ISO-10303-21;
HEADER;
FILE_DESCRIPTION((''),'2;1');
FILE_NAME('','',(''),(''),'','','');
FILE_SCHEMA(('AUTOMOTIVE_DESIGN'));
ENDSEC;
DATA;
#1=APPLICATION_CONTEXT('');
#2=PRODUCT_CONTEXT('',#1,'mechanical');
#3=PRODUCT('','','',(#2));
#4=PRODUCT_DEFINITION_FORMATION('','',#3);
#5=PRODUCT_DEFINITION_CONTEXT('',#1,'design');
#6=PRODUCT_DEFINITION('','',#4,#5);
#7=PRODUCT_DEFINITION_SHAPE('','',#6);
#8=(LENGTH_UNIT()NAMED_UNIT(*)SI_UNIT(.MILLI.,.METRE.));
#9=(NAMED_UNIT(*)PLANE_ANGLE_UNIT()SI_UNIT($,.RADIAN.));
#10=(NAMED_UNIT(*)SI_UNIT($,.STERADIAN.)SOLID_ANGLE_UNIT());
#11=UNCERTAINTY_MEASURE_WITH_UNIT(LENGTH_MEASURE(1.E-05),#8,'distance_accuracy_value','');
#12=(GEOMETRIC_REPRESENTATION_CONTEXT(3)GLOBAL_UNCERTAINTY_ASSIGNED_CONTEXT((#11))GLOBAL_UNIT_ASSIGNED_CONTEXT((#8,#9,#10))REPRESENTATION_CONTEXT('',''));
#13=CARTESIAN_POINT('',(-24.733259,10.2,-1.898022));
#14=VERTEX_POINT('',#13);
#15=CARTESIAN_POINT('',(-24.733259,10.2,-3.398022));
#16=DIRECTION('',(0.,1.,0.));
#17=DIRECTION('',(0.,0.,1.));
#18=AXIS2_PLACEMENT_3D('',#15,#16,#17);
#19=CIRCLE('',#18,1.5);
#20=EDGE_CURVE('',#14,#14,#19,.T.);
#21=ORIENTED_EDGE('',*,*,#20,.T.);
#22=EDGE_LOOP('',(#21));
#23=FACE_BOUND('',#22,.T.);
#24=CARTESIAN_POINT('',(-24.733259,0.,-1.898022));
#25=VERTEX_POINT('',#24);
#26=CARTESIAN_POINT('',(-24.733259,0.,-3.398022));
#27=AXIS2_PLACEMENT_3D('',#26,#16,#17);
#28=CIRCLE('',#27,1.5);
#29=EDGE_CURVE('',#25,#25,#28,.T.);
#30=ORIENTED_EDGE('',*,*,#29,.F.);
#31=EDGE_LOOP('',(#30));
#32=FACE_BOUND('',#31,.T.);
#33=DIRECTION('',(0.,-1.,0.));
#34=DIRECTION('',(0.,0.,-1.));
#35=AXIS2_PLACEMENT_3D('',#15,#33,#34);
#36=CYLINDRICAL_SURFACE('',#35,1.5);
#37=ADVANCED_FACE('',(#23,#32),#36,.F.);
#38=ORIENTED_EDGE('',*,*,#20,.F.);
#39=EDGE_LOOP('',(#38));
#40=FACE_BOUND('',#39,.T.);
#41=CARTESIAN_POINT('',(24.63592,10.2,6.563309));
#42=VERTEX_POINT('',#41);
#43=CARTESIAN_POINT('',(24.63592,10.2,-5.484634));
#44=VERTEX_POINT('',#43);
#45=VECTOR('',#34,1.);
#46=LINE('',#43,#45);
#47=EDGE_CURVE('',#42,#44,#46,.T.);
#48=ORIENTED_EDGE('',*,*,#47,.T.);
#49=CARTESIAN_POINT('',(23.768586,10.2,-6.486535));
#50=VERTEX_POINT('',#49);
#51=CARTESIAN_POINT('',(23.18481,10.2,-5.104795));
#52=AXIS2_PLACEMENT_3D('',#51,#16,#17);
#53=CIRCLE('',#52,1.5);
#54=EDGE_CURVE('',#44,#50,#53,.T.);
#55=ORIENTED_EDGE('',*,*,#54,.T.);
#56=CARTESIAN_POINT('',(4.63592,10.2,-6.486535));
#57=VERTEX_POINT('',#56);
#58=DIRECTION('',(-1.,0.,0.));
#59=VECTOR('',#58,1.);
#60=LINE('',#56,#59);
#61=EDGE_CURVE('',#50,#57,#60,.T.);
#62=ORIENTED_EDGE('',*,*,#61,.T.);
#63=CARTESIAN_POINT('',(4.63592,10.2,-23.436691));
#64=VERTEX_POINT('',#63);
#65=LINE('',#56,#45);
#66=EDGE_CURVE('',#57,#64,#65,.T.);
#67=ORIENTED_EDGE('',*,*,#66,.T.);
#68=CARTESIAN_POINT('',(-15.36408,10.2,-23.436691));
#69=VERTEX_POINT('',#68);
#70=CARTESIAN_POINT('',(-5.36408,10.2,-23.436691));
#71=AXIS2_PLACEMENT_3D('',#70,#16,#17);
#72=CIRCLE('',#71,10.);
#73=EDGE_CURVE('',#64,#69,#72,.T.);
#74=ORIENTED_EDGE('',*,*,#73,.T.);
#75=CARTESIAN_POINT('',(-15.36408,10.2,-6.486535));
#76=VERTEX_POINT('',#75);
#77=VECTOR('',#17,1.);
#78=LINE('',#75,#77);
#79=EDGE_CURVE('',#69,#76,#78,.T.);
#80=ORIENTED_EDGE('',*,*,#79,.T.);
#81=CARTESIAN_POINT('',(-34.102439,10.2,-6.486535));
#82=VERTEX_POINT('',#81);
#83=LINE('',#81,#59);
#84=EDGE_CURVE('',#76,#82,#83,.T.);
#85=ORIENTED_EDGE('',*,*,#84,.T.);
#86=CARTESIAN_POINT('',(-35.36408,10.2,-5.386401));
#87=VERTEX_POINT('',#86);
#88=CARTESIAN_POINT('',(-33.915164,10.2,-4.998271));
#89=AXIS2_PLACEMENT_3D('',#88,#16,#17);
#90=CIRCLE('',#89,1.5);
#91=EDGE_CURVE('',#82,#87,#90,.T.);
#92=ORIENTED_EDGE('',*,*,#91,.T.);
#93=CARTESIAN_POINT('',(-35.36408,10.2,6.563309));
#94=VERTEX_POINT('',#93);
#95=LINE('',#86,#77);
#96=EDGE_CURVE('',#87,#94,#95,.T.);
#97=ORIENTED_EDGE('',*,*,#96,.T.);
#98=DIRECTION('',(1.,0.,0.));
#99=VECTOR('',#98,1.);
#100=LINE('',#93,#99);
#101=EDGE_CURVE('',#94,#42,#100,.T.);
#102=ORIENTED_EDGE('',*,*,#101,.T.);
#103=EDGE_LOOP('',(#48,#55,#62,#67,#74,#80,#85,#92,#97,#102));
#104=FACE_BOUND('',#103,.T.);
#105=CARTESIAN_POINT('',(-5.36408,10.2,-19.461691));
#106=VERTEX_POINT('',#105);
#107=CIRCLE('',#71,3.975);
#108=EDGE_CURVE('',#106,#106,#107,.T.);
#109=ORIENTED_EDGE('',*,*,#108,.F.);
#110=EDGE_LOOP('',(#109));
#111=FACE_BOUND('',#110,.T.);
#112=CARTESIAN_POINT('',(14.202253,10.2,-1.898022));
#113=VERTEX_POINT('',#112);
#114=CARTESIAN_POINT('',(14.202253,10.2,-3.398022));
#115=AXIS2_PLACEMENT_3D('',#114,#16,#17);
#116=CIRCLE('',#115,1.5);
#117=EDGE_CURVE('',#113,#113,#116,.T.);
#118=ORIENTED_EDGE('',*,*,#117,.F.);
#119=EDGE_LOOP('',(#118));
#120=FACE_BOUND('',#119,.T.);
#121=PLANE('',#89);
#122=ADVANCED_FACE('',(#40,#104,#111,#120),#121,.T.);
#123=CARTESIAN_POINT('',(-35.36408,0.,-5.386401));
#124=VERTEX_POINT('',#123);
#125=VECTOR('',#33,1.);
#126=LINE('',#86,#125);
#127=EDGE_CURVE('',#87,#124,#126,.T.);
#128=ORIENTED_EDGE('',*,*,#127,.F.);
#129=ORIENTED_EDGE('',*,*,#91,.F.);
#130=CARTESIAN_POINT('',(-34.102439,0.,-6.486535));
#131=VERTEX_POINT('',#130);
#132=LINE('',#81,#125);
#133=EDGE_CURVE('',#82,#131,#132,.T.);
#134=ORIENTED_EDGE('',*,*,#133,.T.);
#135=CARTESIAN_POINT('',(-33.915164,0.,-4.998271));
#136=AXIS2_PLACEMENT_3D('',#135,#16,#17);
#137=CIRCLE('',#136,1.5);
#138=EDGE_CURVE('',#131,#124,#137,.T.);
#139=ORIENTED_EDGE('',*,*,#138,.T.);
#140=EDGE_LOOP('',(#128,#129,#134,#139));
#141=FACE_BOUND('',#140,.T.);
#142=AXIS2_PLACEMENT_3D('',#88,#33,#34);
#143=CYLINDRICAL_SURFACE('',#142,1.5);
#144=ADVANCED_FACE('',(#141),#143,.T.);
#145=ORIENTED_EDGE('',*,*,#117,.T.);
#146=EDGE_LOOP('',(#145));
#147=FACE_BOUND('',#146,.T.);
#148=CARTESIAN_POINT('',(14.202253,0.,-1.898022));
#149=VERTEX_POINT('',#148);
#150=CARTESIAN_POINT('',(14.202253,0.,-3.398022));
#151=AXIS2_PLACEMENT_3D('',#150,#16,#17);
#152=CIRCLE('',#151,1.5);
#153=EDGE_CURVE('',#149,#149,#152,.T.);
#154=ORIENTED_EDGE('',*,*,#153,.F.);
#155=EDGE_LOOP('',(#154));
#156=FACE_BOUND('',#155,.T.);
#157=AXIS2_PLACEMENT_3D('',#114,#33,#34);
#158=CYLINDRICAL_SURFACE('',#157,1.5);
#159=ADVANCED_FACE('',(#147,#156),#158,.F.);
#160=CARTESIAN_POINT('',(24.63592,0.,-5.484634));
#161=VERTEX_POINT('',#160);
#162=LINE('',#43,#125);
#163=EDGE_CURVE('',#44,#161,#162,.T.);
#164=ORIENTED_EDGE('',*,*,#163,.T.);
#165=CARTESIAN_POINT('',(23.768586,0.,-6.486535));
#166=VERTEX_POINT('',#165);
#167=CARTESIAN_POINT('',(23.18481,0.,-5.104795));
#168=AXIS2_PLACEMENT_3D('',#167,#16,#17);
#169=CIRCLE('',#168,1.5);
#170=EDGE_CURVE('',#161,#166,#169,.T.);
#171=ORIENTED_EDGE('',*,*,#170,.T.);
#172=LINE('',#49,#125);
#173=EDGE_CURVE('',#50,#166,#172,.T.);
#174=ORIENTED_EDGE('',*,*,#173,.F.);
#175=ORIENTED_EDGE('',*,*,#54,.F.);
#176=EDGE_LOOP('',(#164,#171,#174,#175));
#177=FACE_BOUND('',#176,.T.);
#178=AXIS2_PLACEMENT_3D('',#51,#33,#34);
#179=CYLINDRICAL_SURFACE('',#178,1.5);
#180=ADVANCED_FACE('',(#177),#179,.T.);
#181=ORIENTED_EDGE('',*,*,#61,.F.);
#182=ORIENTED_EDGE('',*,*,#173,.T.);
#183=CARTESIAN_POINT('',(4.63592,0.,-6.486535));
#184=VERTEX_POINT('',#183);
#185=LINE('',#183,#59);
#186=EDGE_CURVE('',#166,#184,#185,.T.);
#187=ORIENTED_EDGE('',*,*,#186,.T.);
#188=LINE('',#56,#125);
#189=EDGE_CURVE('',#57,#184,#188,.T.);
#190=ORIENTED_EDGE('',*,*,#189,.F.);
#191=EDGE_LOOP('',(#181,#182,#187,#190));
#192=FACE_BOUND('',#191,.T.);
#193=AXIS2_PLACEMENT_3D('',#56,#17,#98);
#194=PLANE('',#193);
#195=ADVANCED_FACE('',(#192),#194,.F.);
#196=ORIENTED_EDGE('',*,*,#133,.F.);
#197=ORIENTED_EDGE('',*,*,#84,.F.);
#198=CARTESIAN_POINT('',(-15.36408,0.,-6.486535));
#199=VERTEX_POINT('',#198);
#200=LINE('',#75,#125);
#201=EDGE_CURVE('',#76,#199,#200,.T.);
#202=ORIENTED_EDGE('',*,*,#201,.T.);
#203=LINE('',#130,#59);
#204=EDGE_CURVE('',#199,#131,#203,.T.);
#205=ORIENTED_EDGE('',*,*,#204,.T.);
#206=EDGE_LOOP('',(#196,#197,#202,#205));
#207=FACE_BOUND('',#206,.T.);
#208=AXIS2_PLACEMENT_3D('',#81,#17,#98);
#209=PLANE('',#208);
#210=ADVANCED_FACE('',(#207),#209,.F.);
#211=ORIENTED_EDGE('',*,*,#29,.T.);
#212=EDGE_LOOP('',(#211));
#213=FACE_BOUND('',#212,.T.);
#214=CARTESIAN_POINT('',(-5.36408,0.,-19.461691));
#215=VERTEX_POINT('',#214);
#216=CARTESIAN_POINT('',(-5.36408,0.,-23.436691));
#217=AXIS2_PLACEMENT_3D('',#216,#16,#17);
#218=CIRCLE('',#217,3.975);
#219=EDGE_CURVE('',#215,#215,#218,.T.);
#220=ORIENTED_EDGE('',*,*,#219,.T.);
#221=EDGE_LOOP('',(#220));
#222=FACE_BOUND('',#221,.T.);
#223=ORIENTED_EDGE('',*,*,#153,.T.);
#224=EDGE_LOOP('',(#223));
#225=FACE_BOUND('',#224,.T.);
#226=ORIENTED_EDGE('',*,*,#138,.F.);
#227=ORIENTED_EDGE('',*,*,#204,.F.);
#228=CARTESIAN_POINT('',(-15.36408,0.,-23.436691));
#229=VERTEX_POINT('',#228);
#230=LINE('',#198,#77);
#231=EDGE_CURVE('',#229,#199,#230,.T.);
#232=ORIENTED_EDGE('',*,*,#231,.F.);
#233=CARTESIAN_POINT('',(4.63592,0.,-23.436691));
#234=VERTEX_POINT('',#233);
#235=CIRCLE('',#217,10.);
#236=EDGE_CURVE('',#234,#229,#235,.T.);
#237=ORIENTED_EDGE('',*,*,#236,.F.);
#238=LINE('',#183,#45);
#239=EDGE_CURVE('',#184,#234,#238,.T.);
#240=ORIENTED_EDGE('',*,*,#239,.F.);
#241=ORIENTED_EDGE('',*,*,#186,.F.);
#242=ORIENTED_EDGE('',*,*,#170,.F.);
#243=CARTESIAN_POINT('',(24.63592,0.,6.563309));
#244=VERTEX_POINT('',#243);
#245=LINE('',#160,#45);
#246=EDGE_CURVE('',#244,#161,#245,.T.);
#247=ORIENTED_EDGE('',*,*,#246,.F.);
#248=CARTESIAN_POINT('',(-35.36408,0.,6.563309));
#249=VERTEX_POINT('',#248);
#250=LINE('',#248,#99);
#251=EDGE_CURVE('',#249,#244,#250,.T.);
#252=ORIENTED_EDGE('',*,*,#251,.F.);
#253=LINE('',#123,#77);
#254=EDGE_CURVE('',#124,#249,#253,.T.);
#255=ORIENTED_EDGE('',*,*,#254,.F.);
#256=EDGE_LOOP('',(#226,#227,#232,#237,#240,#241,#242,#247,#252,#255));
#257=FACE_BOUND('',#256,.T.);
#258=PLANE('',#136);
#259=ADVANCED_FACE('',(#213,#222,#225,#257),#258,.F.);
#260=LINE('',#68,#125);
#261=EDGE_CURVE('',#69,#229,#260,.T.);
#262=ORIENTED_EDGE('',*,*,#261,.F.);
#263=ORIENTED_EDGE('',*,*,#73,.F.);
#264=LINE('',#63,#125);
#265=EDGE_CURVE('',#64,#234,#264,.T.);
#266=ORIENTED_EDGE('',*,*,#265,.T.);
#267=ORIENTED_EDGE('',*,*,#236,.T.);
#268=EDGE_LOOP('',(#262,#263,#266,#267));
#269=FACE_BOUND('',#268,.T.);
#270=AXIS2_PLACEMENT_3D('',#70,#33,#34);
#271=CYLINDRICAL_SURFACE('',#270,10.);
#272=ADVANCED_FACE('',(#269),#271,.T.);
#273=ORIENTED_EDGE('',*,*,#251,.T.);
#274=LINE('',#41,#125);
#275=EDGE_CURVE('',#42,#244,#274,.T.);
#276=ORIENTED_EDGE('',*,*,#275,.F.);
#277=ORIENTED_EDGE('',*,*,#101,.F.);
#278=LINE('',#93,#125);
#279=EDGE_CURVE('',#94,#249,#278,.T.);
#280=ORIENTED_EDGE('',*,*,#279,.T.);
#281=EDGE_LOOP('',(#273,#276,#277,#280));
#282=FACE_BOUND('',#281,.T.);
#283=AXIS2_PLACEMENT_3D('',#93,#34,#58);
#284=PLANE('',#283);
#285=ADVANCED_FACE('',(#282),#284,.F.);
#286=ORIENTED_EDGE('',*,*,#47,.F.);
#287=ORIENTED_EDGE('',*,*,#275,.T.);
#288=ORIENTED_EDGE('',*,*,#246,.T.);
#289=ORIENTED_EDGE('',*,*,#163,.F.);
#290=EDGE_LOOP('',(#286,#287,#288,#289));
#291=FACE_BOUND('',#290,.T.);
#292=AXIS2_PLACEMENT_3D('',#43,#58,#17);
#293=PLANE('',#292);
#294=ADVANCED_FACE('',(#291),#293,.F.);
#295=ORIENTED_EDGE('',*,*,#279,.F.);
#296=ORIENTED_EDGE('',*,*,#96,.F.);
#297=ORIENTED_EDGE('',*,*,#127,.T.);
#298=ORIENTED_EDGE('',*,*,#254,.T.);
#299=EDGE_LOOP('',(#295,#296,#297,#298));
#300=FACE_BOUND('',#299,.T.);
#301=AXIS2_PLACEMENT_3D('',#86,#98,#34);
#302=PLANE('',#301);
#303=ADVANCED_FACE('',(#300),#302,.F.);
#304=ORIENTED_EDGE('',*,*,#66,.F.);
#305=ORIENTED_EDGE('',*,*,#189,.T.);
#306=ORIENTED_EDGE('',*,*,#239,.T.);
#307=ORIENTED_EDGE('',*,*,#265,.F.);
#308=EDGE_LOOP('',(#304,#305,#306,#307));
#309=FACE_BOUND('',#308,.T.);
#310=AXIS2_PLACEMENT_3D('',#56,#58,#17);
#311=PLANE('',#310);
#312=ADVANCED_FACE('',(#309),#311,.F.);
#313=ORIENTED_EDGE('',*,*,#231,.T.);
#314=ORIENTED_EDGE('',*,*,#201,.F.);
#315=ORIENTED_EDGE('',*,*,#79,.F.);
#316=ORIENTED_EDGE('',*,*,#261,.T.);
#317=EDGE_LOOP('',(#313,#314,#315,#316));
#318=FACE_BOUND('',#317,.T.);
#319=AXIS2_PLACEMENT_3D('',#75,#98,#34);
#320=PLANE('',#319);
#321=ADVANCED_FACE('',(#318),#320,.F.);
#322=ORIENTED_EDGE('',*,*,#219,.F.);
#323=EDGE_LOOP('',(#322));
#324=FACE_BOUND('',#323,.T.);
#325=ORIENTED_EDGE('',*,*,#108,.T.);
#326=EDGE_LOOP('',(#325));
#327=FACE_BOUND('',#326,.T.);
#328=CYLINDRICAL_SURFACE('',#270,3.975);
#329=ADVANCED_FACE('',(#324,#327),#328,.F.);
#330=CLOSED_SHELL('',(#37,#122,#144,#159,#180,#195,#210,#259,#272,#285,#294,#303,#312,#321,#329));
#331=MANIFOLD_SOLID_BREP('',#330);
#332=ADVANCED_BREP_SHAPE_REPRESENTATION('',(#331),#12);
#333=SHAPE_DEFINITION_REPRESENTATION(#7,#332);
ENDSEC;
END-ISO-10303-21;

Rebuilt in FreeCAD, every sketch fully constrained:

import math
import FreeCAD as App
import Part
import Sketcher

V = App.Vector

doc = App.newDocument("Part")
body = doc.addObject("PartDesign::Body", "Body")

# Sketch on XZ plane
sketch1 = body.newObject("Sketcher::SketchObject", "Sketch")
sketch1.AttachmentSupport = (doc.getObject("XZ_Plane"), [""])
sketch1.MapMode = "FlatFace"
sketch1.addGeometry([
    Part.LineSegment(V(-15.4, -6.5, 0), V(-34.1, -6.5, 0)),  # 0
    Part.ArcOfCircle(Part.Circle(V(-33.9, -5, 0), V(0, 0, 1), 1.5), math.radians(-165), math.radians(-97)),  # 1
    Part.LineSegment(V(-35.4, -5.4, 0), V(-35.4, 6.6, 0)),  # 2
    Part.LineSegment(V(-35.4, 6.6, 0), V(24.6, 6.6, 0)),  # 3
    Part.LineSegment(V(24.6, 6.6, 0), V(24.6, -5.5, 0)),  # 4
    Part.ArcOfCircle(Part.Circle(V(23.2, -5.1, 0), V(0, 0, 1), 1.5), math.radians(-67), math.radians(-15)),  # 5
    Part.LineSegment(V(23.8, -6.5, 0), V(4.6, -6.5, 0)),  # 6
    Part.LineSegment(V(4.6, -6.5, 0), V(4.6, -23.4, 0)),  # 7
    Part.ArcOfCircle(Part.Circle(V(-5.4, -23.4, 0), V(0, 0, 1), 10), math.radians(180), math.radians(360)),  # 8
    Part.LineSegment(V(-15.4, -23.4, 0), V(-15.4, -6.5, 0)),  # 9
    Part.Circle(V(14.2, -3.4, 0), V(0, 0, 1), 1.5),  # 10
    Part.Circle(V(-24.7, -3.4, 0), V(0, 0, 1), 1.5),  # 11
    Part.Circle(V(-5.4, -23.4, 0), V(0, 0, 1), 4),  # 12
], False)
sketch1.addConstraint([
    Sketcher.Constraint("Coincident", 0, 2, 1, 2),
    Sketcher.Constraint("Coincident", 1, 1, 2, 1),
    Sketcher.Constraint("Coincident", 2, 2, 3, 1),
    Sketcher.Constraint("Coincident", 3, 2, 4, 1),
    Sketcher.Constraint("Coincident", 4, 2, 5, 2),
    Sketcher.Constraint("Coincident", 5, 1, 6, 1),
    Sketcher.Constraint("Coincident", 6, 2, 7, 1),
    Sketcher.Constraint("Tangent", 7, 2, 8, 2),
    Sketcher.Constraint("Tangent", 8, 1, 9, 1),
    Sketcher.Constraint("Coincident", 9, 2, 0, 1),
    Sketcher.Constraint("Horizontal", 0),
    Sketcher.Constraint("Vertical", 2),
    Sketcher.Constraint("Horizontal", 3),
    Sketcher.Constraint("Vertical", 4),
    Sketcher.Constraint("Horizontal", 6),
    Sketcher.Constraint("Vertical", 7),
    Sketcher.Constraint("Vertical", 9),
    Sketcher.Constraint("Coincident", 12, 3, 8, 3),
    Sketcher.Constraint("Equal", 1, 5),
    Sketcher.Constraint("Equal", 5, 10),
    Sketcher.Constraint("Equal", 10, 11),
    Sketcher.Constraint("Horizontal", 10, 3, 11, 3),
    Sketcher.Constraint("Horizontal", 0, 2, 5, 1),
    Sketcher.Constraint("Diameter", 10, 3.0),
    Sketcher.Constraint("Radius", 8, 10.0),
    Sketcher.Constraint("Diameter", 12, 7.95),
    Sketcher.Constraint("DistanceX", 3, 1, 3, 2, 60.0),
    Sketcher.Constraint("DistanceX", 1, 1, 8, 3, 30.0),
    Sketcher.Constraint("DistanceY", 8, 3, 2, 2, 30.0),
    Sketcher.Constraint("DistanceX", 0, 2, 0, 1, 18.738359),
    Sketcher.Constraint("DistanceY", 2, 1, 2, 2, 11.94971),
    Sketcher.Constraint("DistanceY", 1, 1, -1, 1, 5.386401),
    Sketcher.Constraint("DistanceY", 5, 1, 4, 2, 1.001901),
    Sketcher.Constraint("DistanceX", 6, 2, 6, 1, 19.132665),
    Sketcher.Constraint("DistanceY", 4, 2, 4, 1, 12.047943),
    Sketcher.Constraint("DistanceX", -1, 1, 5, 3, 23.18481),
    Sketcher.Constraint("DistanceY", 10, 3, -1, 1, 3.398022),
    Sketcher.Constraint("DistanceX", 11, 3, -1, 1, 24.733259),
    Sketcher.Constraint("DistanceX", 0, 2, 10, 3, 48.304692),
])
pad1 = body.newObject("PartDesign::Pad", "Pad")
pad1.Profile = sketch1
pad1.Length = 10.2
pad1.Reversed = True

doc.recompute()
